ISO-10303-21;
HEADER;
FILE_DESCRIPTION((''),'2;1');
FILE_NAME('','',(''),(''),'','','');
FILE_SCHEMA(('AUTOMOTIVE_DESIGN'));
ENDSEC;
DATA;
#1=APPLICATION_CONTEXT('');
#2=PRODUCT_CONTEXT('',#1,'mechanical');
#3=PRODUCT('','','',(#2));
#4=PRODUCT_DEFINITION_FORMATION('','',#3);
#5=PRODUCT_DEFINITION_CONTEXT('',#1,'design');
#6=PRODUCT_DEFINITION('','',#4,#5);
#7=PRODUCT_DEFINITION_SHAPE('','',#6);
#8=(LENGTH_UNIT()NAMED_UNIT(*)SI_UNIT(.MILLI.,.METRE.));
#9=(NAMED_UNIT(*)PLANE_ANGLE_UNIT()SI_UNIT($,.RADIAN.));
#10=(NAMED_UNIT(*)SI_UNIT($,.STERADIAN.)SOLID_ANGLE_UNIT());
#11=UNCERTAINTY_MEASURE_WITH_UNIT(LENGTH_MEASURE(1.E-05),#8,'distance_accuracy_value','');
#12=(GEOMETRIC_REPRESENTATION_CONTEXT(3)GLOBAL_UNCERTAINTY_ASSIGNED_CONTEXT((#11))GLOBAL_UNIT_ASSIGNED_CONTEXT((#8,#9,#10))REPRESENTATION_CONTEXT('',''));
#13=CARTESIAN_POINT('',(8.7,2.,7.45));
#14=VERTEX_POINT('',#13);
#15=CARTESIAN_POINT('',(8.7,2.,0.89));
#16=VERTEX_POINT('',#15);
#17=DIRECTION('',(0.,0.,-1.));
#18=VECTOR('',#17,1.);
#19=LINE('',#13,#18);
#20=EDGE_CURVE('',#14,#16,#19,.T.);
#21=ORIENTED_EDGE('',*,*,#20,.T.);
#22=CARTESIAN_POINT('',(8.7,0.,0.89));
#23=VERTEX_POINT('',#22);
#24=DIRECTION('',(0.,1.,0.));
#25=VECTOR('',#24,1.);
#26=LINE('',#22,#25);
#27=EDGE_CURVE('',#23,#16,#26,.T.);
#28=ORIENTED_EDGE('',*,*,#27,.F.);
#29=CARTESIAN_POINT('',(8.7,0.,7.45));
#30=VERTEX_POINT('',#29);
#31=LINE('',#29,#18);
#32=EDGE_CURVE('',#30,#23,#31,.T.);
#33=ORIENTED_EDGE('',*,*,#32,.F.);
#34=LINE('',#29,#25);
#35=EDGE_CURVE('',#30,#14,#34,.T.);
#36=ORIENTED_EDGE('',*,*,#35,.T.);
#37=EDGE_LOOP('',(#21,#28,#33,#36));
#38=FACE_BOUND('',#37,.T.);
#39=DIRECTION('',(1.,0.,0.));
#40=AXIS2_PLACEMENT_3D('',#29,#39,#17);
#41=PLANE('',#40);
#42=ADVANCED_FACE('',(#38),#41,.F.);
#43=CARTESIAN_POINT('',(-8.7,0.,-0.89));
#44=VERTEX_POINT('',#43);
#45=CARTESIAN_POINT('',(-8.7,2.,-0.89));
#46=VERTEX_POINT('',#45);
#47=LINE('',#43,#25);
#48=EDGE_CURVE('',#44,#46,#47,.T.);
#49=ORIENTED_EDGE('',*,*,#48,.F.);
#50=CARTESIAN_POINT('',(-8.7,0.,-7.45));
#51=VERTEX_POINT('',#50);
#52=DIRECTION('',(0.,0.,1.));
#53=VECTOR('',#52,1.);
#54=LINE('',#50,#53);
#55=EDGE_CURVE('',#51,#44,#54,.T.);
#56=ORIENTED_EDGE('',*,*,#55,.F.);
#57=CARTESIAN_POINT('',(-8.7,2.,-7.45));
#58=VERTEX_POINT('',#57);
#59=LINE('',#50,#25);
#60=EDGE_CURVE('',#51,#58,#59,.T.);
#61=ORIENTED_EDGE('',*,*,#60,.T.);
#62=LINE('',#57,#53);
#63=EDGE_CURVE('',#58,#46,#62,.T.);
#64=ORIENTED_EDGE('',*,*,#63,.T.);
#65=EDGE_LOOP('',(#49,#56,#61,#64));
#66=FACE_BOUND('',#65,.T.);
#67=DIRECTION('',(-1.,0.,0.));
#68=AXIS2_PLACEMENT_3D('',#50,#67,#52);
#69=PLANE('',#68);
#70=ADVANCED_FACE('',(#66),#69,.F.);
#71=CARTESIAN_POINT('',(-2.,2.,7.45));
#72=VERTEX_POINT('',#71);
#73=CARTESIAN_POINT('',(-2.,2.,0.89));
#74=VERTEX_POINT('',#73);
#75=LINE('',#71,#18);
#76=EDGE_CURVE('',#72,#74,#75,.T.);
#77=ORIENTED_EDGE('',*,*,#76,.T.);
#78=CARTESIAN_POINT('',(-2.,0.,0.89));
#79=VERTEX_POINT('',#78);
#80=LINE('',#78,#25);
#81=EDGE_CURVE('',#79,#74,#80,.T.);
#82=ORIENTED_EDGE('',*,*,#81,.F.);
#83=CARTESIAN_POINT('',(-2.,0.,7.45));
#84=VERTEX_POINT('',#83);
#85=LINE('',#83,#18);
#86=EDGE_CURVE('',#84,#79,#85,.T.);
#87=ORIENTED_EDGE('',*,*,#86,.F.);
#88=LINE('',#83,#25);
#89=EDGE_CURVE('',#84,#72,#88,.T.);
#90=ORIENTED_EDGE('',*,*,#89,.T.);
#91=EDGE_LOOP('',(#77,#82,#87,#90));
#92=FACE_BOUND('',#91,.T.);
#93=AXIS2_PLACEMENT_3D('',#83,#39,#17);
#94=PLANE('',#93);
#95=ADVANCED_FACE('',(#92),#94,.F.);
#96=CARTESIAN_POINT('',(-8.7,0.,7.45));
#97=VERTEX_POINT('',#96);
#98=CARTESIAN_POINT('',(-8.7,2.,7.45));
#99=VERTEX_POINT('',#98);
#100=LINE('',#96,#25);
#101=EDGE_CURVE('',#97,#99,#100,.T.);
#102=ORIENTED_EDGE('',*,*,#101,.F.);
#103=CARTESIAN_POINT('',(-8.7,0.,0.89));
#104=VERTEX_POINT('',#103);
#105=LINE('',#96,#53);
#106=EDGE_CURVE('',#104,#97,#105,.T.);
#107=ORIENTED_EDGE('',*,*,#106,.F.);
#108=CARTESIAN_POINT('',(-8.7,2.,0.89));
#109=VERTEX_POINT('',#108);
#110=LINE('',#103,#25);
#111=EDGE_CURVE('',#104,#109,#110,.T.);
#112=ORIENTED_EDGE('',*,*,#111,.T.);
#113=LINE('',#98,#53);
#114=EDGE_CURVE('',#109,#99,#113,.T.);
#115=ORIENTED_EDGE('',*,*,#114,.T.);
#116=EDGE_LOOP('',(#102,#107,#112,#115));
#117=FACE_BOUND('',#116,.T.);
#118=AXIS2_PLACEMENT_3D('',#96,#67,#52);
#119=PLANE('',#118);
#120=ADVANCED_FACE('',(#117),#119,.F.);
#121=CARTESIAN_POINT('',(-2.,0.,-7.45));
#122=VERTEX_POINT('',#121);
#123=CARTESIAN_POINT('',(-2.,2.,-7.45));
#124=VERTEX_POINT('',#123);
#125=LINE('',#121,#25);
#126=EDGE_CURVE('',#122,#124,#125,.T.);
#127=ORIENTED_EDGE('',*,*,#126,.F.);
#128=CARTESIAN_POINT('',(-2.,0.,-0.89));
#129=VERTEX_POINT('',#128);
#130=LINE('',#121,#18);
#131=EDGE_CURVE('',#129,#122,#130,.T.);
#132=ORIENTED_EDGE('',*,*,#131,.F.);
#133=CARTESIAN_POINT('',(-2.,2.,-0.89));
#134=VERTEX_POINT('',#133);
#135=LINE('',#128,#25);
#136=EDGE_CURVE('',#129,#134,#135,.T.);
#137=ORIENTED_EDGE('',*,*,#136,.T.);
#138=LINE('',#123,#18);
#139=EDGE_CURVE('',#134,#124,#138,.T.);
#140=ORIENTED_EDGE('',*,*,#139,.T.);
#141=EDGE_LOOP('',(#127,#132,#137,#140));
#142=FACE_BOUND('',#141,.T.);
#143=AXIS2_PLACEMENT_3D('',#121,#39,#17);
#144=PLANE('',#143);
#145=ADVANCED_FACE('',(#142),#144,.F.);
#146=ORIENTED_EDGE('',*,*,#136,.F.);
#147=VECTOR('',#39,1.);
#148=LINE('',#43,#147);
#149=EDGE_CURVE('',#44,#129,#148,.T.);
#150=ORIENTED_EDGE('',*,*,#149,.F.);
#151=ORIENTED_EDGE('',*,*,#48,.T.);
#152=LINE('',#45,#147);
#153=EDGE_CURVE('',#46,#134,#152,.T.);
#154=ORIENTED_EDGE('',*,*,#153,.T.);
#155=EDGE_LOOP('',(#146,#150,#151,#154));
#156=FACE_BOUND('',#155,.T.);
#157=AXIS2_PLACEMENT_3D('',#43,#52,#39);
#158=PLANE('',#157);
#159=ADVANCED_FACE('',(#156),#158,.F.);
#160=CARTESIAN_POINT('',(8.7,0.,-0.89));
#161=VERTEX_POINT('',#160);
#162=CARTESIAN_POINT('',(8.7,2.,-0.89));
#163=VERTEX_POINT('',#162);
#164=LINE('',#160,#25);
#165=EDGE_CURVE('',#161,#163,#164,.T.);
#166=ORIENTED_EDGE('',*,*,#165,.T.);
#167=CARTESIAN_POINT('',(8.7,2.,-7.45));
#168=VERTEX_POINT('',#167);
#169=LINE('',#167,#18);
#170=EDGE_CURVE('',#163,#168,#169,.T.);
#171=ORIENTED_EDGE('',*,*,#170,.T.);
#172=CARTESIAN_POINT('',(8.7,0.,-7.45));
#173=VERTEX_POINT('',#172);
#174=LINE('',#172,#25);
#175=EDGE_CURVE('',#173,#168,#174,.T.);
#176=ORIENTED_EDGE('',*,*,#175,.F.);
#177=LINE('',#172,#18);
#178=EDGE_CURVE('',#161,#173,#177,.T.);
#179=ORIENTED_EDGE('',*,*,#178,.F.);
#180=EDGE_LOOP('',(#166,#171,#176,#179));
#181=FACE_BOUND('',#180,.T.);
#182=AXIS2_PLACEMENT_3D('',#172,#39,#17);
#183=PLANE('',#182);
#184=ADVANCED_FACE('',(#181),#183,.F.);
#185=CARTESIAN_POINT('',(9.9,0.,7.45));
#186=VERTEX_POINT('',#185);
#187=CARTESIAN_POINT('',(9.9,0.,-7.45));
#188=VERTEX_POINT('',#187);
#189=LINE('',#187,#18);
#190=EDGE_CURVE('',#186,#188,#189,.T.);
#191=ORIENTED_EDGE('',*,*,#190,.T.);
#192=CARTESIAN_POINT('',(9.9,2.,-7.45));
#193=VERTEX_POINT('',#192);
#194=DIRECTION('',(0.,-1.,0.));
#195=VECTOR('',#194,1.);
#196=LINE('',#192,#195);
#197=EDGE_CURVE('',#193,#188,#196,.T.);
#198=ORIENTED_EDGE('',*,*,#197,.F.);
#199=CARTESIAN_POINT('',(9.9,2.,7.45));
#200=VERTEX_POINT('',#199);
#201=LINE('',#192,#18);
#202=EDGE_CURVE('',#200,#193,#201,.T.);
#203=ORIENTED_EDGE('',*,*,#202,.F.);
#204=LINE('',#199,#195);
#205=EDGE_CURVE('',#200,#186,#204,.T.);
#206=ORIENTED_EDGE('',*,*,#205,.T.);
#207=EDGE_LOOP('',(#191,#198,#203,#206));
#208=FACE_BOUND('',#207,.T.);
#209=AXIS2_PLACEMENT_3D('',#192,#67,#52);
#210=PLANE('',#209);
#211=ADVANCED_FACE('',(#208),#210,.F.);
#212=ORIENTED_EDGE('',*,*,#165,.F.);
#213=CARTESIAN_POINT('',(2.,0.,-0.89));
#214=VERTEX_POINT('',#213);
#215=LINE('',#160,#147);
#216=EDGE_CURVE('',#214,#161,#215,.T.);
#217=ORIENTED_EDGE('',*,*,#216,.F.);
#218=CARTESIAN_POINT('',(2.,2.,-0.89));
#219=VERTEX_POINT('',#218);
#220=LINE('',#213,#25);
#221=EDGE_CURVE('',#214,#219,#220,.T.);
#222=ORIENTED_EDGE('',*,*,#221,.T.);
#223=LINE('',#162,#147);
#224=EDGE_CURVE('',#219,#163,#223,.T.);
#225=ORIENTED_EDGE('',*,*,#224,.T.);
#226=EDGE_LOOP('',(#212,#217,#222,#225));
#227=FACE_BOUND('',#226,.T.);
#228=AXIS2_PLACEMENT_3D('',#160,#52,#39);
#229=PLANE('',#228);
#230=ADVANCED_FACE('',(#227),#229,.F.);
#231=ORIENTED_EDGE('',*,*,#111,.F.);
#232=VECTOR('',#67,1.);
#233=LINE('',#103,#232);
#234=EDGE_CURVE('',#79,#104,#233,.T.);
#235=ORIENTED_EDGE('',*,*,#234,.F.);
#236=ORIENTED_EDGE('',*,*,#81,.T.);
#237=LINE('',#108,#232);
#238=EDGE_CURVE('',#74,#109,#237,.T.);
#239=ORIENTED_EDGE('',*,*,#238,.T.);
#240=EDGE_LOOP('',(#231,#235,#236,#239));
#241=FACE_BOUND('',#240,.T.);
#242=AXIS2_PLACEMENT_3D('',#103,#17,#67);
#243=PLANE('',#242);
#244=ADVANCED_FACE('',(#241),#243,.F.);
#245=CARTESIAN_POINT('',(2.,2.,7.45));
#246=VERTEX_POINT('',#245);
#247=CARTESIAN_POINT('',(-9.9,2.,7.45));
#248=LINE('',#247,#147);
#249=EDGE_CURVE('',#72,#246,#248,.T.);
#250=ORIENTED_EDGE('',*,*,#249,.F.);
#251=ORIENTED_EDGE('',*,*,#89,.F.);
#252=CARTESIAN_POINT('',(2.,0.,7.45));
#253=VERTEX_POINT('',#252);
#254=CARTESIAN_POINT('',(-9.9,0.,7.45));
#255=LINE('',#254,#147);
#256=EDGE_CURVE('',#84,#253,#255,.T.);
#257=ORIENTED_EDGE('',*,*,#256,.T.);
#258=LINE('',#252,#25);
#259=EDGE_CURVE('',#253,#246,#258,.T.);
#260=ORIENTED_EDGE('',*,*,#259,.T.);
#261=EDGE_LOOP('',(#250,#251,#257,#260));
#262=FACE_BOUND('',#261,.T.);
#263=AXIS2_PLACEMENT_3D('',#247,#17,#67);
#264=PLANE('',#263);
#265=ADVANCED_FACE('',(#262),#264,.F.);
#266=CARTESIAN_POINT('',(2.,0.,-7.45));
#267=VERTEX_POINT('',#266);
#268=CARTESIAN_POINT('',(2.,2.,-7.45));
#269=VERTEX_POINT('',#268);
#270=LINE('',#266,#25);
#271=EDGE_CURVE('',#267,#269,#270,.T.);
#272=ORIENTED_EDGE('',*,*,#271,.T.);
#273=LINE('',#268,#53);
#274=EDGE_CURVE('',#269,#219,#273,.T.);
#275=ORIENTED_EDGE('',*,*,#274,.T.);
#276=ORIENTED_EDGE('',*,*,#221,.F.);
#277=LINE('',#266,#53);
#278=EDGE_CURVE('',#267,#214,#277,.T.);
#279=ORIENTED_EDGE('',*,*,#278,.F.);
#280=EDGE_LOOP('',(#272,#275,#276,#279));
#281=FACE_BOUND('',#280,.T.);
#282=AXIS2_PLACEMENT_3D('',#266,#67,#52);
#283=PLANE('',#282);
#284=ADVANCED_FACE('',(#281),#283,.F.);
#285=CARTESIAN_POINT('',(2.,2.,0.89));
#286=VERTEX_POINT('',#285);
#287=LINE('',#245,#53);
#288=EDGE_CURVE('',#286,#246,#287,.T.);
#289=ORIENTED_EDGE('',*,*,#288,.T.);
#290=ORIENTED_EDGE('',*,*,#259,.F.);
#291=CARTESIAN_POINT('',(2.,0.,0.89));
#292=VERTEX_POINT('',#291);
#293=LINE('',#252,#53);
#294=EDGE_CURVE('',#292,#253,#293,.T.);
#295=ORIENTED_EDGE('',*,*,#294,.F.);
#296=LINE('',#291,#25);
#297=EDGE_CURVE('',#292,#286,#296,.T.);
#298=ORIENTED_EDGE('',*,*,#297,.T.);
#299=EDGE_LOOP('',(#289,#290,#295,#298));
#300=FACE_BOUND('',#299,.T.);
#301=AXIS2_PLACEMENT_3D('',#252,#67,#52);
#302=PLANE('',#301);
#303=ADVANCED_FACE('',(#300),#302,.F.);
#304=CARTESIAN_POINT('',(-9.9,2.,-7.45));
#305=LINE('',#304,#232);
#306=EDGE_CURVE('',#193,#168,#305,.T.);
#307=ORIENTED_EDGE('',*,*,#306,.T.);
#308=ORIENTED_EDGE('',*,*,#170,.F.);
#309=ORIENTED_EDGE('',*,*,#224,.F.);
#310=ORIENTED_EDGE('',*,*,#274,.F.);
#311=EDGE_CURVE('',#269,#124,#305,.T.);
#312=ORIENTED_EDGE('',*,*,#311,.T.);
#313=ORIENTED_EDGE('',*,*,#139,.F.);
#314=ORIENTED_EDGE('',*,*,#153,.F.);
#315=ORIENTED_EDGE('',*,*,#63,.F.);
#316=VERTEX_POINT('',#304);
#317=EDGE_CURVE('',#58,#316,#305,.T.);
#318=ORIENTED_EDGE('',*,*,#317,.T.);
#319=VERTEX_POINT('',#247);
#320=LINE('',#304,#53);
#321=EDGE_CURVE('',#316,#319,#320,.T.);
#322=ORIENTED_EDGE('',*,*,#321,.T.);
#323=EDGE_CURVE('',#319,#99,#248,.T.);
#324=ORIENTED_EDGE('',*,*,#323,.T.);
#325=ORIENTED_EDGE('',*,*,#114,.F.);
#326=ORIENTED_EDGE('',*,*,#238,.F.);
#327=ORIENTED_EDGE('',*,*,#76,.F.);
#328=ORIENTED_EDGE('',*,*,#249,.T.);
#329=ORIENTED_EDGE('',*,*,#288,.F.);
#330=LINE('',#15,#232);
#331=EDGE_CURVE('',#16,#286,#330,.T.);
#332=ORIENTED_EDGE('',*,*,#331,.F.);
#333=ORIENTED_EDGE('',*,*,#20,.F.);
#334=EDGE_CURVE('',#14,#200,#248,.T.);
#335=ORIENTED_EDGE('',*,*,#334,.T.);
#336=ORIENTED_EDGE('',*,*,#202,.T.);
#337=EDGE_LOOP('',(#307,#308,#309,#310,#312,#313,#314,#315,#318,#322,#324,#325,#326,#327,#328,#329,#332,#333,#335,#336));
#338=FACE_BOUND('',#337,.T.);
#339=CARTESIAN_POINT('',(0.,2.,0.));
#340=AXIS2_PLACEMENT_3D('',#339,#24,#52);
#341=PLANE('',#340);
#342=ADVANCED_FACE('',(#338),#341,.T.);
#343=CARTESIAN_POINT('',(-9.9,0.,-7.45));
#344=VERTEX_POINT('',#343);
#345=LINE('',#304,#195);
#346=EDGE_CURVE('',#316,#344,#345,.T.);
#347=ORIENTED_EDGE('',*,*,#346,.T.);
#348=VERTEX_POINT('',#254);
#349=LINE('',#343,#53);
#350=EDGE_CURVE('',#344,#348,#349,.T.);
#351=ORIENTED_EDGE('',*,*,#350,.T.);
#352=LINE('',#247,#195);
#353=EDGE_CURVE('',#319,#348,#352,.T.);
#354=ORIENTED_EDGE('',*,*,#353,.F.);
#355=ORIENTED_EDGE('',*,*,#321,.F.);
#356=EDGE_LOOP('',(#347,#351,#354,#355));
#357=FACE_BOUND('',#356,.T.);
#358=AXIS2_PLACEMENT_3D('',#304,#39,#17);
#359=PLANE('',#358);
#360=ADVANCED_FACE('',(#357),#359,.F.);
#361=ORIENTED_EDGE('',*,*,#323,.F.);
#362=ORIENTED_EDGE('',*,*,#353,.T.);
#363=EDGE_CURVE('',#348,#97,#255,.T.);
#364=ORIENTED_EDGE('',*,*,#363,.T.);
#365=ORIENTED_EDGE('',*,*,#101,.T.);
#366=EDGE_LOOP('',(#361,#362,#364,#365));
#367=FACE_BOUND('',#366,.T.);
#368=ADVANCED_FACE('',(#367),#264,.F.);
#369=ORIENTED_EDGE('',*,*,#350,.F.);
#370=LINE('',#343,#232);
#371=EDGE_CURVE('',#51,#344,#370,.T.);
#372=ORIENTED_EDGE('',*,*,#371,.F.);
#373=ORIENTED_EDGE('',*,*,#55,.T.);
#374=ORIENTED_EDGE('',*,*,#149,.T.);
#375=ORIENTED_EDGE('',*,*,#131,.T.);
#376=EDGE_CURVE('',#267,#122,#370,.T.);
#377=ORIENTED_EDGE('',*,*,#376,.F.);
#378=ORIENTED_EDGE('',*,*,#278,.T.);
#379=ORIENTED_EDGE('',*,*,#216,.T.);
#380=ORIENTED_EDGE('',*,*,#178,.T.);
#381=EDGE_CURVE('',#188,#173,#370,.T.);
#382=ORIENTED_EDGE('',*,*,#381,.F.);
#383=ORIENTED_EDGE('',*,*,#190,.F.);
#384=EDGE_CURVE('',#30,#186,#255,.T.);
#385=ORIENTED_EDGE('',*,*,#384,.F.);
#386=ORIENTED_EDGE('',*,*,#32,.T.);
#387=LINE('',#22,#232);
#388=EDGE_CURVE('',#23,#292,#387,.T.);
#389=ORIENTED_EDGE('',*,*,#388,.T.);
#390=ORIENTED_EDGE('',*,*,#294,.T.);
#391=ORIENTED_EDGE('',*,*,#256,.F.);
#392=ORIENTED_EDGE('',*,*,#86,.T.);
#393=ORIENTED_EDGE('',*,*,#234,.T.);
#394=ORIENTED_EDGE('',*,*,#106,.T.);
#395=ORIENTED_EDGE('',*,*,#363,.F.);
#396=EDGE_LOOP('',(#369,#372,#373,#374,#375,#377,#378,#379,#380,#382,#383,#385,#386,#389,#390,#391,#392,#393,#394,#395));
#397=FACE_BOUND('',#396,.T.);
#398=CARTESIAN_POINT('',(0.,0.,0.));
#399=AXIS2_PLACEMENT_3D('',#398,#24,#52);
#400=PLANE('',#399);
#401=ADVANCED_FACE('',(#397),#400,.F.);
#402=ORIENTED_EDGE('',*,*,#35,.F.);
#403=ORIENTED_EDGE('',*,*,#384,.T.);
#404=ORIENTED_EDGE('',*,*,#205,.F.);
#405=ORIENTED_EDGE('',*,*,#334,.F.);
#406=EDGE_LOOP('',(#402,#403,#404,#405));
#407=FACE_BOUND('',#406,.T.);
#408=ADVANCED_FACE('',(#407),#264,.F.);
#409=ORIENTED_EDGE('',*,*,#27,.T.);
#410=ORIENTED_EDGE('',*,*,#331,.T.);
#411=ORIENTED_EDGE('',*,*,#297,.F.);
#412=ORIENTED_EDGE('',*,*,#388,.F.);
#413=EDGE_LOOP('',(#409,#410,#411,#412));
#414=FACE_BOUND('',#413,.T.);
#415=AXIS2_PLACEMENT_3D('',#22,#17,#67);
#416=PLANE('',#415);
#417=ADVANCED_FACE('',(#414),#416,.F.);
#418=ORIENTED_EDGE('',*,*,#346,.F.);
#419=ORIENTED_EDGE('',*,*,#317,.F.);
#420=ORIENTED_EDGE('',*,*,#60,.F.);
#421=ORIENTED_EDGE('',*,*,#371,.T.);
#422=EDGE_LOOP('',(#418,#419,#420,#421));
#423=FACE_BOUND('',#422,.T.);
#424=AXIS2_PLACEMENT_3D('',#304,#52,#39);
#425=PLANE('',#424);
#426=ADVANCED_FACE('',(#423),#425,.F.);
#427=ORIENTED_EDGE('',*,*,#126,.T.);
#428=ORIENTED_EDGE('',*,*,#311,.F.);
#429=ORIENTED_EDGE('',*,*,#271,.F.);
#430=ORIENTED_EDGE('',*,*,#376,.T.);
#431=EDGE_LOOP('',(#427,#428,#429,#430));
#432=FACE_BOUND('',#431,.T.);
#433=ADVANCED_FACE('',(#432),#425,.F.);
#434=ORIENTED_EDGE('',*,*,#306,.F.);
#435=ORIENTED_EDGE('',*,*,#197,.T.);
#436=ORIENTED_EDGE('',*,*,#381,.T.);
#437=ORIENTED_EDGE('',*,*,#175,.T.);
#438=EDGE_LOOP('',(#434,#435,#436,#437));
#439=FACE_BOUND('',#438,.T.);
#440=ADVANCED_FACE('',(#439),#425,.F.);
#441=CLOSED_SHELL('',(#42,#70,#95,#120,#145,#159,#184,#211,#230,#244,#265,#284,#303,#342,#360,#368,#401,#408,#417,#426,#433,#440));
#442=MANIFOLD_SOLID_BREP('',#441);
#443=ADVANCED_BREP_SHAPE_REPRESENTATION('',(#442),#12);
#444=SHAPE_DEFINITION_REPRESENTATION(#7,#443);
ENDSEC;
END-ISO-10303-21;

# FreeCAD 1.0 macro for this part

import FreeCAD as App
import Part
import Sketcher
from FreeCAD import Vector
Q = App.Units.Quantity


def add_polygon(sketch, points):
    """Adds a closed chain of lines whose ends are joined by coincident constraints."""
    first, n = sketch.GeometryCount, len(points)
    for a, b in zip(points, points[1:] + points[:1]):
        sketch.addGeometry(Part.LineSegment(App.Vector(*a, 0), App.Vector(*b, 0)), False)
    for i in range(n):
        sketch.addConstraint(Sketcher.Constraint("Coincident", first + i, 2, first + (i + 1) % n, 1))

doc = App.newDocument("Part")
body = doc.addObject("PartDesign::Body", "Body")

# Sketch on XZ plane
sketch1 = body.newObject("Sketcher::SketchObject", "Sketch")
sketch1.AttachmentSupport = (doc.getObject("XZ_Plane"), [""])
sketch1.MapMode = "FlatFace"
add_polygon(sketch1, [(-10, -7), (-10, 7), (10, 7), (10, -7)])  # lines 0-3
sketch1.addConstraint(Sketcher.Constraint("Vertical", 0))
sketch1.addConstraint(Sketcher.Constraint("Horizontal", 1))
sketch1.addConstraint(Sketcher.Constraint("Vertical", 2))
sketch1.addConstraint(Sketcher.Constraint("Horizontal", 3))
sketch1.addConstraint(Sketcher.Constraint("Symmetric", 0, 2, 2, 2, -1, 1))
sketch1.addConstraint(Sketcher.Constraint("DistanceX", 1, 1, 1, 2, Q("19.8 mm")))
sketch1.addConstraint(Sketcher.Constraint("DistanceY", 0, 1, 0, 2, Q("14.9 mm")))
pad1 = body.newObject("PartDesign::Pad", "Pad")
pad1.Profile = sketch1
pad1.Length = 2
pad1.Reversed = True

# Sketch on XZ plane
sketch2 = body.newObject("Sketcher::SketchObject", "Sketch001")
sketch2.AttachmentSupport = (doc.getObject("XZ_Plane"), [""])
sketch2.MapMode = "FlatFace"
sketch2.AttachmentOffset = App.Placement(Vector(0, 0, -2), App.Rotation())
add_polygon(sketch2, [(-9, -7), (-9, -1), (-2, -1), (-2, -7)])  # lines 0-3
add_polygon(sketch2, [(2, 1), (2, 7), (9, 7), (9, 1)])  # lines 4-7
add_polygon(sketch2, [(-9, 1), (-9, 7), (-2, 7), (-2, 1)])  # lines 8-11
add_polygon(sketch2, [(2, -7), (2, -1), (9, -1), (9, -7)])  # lines 12-15
sketch2.addConstraint(Sketcher.Constraint("Vertical", 0))
sketch2.addConstraint(Sketcher.Constraint("Horizontal", 1))
sketch2.addConstraint(Sketcher.Constraint("Vertical", 2))
sketch2.addConstraint(Sketcher.Constraint("Horizontal", 3))
sketch2.addConstraint(Sketcher.Constraint("Vertical", 4))
sketch2.addConstraint(Sketcher.Constraint("Horizontal", 5))
sketch2.addConstraint(Sketcher.Constraint("Vertical", 6))
sketch2.addConstraint(Sketcher.Constraint("Horizontal", 7))
sketch2.addConstraint(Sketcher.Constraint("Vertical", 8))
sketch2.addConstraint(Sketcher.Constraint("Horizontal", 9))
sketch2.addConstraint(Sketcher.Constraint("Vertical", 10))
sketch2.addConstraint(Sketcher.Constraint("Horizontal", 11))
sketch2.addConstraint(Sketcher.Constraint("Vertical", 12))
sketch2.addConstraint(Sketcher.Constraint("Horizontal", 13))
sketch2.addConstraint(Sketcher.Constraint("Vertical", 14))
sketch2.addConstraint(Sketcher.Constraint("Horizontal", 15))
sketch2.addConstraint(Sketcher.Constraint("Symmetric", 2, 2, 4, 2, -1, 1))
sketch2.addConstraint(Sketcher.Constraint("Symmetric", 0, 2, 6, 2, -1, 1))
sketch2.addConstraint(Sketcher.Constraint("Symmetric", 10, 2, 12, 2, -1, 1))
sketch2.addConstraint(Sketcher.Constraint("Symmetric", 8, 2, 14, 2, -1, 1))
sketch2.addConstraint(Sketcher.Constraint("Symmetric", 5, 2, 8, 2, -2))
sketch2.addConstraint(Sketcher.Constraint("Symmetric", 7, 2, 10, 2, -2))
sketch2.addConstraint(Sketcher.Constraint("DistanceX", 1, 1, 1, 2, Q("6.7 mm")))
sketch2.addConstraint(Sketcher.Constraint("DistanceX", 1, 2, -1, 1, Q("2 mm")))
sketch2.addConstraint(Sketcher.Constraint("DistanceY", 0, 1, 0, 2, Q("6.56 mm")))
sketch2.addConstraint(Sketcher.Constraint("DistanceY", 2, 2, 4, 2, Q("14.9 mm")))
pocket1 = body.newObject("PartDesign::Pocket", "Pocket")
pocket1.Profile = sketch2
pocket1.Type = "ThroughAll"
pocket1.Reversed = True

doc.recompute()
